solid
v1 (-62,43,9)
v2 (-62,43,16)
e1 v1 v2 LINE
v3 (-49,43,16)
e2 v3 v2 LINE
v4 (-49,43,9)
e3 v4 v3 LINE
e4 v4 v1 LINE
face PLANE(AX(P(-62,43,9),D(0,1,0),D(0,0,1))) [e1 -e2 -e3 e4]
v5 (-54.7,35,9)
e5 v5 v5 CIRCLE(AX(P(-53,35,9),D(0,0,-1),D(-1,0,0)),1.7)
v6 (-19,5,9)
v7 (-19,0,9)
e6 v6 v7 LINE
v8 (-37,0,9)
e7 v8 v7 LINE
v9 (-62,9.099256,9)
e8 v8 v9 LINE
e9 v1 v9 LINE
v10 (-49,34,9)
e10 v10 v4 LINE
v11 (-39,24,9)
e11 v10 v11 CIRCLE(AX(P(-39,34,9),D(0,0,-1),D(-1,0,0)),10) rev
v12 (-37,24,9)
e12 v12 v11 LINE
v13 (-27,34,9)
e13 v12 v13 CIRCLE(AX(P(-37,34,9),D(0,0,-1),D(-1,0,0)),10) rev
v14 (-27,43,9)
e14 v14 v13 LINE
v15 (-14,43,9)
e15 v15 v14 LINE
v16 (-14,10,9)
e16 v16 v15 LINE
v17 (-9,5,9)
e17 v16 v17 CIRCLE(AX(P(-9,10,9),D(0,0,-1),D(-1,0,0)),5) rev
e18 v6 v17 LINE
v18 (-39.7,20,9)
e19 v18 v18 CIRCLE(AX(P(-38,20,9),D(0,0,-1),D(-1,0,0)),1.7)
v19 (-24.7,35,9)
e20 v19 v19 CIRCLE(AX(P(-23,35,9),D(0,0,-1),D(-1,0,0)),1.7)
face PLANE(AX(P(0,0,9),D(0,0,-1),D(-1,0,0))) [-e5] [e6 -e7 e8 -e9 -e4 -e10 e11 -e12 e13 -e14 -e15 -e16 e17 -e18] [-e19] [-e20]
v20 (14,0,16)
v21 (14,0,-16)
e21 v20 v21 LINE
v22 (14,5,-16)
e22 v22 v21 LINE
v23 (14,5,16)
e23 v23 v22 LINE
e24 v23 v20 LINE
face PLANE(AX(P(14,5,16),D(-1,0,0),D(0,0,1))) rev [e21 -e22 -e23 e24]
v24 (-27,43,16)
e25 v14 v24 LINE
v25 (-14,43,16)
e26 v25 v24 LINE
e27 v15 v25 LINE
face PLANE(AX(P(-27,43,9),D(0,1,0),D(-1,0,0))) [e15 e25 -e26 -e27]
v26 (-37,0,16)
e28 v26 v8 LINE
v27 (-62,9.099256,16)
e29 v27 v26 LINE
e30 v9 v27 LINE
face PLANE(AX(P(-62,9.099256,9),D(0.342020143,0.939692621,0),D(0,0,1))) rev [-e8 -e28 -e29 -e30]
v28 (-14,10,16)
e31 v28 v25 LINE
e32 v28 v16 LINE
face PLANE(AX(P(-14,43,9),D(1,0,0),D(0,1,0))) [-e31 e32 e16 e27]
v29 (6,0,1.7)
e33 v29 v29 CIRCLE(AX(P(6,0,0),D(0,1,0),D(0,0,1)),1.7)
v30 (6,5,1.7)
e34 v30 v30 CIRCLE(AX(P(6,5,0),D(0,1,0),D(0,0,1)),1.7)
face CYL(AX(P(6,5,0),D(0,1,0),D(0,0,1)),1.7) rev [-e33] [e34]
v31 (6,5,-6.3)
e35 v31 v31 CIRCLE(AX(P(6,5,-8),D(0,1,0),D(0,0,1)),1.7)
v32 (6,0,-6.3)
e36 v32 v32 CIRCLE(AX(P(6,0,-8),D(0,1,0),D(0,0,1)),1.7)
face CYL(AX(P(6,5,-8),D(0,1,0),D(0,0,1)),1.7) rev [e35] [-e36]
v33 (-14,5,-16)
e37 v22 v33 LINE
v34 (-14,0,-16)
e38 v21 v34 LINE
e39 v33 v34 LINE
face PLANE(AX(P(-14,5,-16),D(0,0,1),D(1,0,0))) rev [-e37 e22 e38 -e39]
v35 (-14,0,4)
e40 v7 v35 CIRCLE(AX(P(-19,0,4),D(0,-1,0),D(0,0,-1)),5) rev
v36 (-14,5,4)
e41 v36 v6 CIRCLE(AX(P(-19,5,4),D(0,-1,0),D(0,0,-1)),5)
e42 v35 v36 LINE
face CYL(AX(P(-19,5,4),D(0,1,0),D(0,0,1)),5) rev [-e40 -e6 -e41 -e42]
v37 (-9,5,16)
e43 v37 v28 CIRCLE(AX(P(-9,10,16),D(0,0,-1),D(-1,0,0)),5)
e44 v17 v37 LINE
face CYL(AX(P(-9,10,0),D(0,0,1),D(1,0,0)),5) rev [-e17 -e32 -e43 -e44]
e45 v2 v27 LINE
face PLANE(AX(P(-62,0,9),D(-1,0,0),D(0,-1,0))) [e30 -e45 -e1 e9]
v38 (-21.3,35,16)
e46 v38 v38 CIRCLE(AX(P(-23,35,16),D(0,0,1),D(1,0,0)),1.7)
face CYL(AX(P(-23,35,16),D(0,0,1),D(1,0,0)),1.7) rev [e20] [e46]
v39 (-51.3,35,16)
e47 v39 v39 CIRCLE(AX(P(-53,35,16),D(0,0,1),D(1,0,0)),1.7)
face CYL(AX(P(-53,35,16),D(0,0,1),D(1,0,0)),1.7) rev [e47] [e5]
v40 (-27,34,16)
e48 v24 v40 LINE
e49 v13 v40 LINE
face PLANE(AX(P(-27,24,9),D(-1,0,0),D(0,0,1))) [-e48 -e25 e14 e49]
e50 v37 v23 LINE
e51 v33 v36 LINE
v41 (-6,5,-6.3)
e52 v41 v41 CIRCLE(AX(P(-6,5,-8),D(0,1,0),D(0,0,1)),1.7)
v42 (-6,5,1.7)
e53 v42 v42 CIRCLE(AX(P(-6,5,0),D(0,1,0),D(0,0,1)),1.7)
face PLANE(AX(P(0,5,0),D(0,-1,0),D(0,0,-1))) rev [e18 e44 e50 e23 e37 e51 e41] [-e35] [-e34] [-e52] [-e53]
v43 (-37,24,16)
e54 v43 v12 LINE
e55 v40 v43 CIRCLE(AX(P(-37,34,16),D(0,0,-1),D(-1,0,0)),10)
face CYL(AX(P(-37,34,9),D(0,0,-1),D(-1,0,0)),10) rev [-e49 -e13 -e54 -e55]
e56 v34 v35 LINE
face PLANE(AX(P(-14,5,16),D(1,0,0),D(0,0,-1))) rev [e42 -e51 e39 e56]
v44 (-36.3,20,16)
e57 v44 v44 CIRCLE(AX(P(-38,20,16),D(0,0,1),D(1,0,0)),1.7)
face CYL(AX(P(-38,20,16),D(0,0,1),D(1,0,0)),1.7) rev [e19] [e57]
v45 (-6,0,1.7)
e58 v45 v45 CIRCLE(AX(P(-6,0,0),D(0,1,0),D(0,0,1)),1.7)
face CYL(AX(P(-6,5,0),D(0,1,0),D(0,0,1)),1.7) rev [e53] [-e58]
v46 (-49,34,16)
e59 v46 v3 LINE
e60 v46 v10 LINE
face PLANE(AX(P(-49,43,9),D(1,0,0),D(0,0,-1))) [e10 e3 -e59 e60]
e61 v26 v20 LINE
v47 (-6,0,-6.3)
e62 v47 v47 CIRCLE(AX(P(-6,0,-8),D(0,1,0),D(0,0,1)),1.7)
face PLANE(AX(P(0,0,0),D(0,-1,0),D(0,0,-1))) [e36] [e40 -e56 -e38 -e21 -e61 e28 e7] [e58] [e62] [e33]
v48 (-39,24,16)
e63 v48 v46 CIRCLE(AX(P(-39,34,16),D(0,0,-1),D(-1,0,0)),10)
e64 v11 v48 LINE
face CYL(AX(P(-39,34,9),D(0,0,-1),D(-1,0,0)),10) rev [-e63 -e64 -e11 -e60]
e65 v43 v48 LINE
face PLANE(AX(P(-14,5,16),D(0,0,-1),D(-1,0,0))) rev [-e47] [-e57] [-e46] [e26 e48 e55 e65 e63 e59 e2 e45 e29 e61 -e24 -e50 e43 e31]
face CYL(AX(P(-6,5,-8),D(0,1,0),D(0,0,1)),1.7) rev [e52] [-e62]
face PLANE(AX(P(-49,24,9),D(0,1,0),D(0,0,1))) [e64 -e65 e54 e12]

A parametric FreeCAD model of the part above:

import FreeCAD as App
import Part
import Sketcher
from FreeCAD import Vector
Q = App.Units.Quantity


def edges_at(feature, points):
    """Names of the edges that pass closest to the given points."""
    edges = feature.Shape.Edges
    near = lambda p: min(range(len(edges)), key=lambda i: edges[i].distToShape(Part.Vertex(*p))[0])
    return sorted({f"Edge{near(p) + 1}" for p in points})

doc = App.newDocument("Part")
body = doc.addObject("PartDesign::Body", "Body")

sketch1 = doc.addObject("Sketcher::SketchObject", "Sketch")
body.addObject(sketch1)
sketch1.AttachmentSupport = (doc.XZ_Plane, [""])
sketch1.MapMode = "FlatFace"
sketch1.addGeometry([
    Part.LineSegment(Vector(-14, -16, 0), Vector(-14, 16, 0)),
    Part.LineSegment(Vector(-14, 16, 0), Vector(14, 16, 0)),
    Part.LineSegment(Vector(14, 16, 0), Vector(14, -16, 0)),
    Part.LineSegment(Vector(14, -16, 0), Vector(-14, -16, 0)),
], False)
sketch1.addConstraint([
    Sketcher.Constraint("Coincident", 0, 2, 1, 1),
    Sketcher.Constraint("Coincident", 1, 2, 2, 1),
    Sketcher.Constraint("Coincident", 2, 2, 3, 1),
    Sketcher.Constraint("Coincident", 3, 2, 0, 1),
    Sketcher.Constraint("Vertical", 0),
    Sketcher.Constraint("Horizontal", 1),
    Sketcher.Constraint("Vertical", 2),
    Sketcher.Constraint("Horizontal", 3),
    Sketcher.Constraint("Symmetric", 0, 2, 2, 2, -1, 1),
    Sketcher.Constraint("DistanceX", 1, 1, 1, 2, Q("28 mm")),
    Sketcher.Constraint("DistanceY", 0, 1, 0, 2, Q("32 mm")),
])
pad1 = doc.addObject("PartDesign::Pad", "Pad")
body.addObject(pad1)
pad1.Profile = sketch1
pad1.Length = 5
pad1.Reversed = True

sketch2 = doc.addObject("Sketcher::SketchObject", "Sketch001")
body.addObject(sketch2)
sketch2.AttachmentSupport = (doc.XZ_Plane, [""])
sketch2.MapMode = "FlatFace"
sketch2.AttachmentOffset = App.Placement(Vector(0, 0, -5), App.Rotation())
sketch2.addGeometry([
    Part.Circle(Vector(-6, -8, 0), Vector(0, 0, 1), 1.7),
    Part.Circle(Vector(6, -8, 0), Vector(0, 0, 1), 1.7),
    Part.Circle(Vector(6, 0, 0), Vector(0, 0, 1), 1.7),
    Part.Circle(Vector(-6, 0, 0), Vector(0, 0, 1), 1.7),
], False)
sketch2.addConstraint([
    Sketcher.Constraint("Equal", 0, 1),
    Sketcher.Constraint("Equal", 1, 2),
    Sketcher.Constraint("Equal", 2, 3),
    Sketcher.Constraint("Symmetric", 2, 3, 3, 3, -1, 1),
    Sketcher.Constraint("Symmetric", 0, 3, 1, 3, -2),
    Sketcher.Constraint("PointOnObject", 2, 3, -1),
    Sketcher.Constraint("Vertical", 1, 3, 2, 3),
    Sketcher.Constraint("Diameter", 0, Q("3.4 mm")),
    Sketcher.Constraint("DistanceX", 0, 3, -1, 1, Q("6 mm")),
    Sketcher.Constraint("DistanceY", 0, 3, -1, 1, Q("8 mm")),
])
doc.recompute()
hole = doc.addObject("PartDesign::Hole", "Hole")
body.addObject(hole)
hole.Profile = sketch2
hole.ThreadType = "None"
hole.Diameter = 3.4
hole.DepthType = "ThroughAll"
hole.Reversed = True

sketch3 = doc.addObject("Sketcher::SketchObject", "Sketch002")
body.addObject(sketch3)
sketch3.AttachmentSupport = (doc.XY_Plane, [""])
sketch3.MapMode = "FlatFace"
sketch3.AttachmentOffset = App.Placement(Vector(0, 0, 16), App.Rotation())
sketch3.addGeometry([
    Part.LineSegment(Vector(-62, 0, 0), Vector(-14, 0, 0)),
    Part.LineSegment(Vector(-14, 0, 0), Vector(-14, 43, 0)),
    Part.LineSegment(Vector(-14, 43, 0), Vector(-27, 43, 0)),
    Part.LineSegment(Vector(-27, 43, 0), Vector(-27, 24, 0)),
    Part.LineSegment(Vector(-27, 24, 0), Vector(-49, 24, 0)),
    Part.LineSegment(Vector(-49, 24, 0), Vector(-49, 43, 0)),
    Part.LineSegment(Vector(-49, 43, 0), Vector(-62, 43, 0)),
    Part.LineSegment(Vector(-62, 43, 0), Vector(-62, 0, 0)),
], False)
sketch3.addConstraint([
    Sketcher.Constraint("Coincident", 0, 2, 1, 1),
    Sketcher.Constraint("Coincident", 1, 2, 2, 1),
    Sketcher.Constraint("Coincident", 2, 2, 3, 1),
    Sketcher.Constraint("Coincident", 3, 2, 4, 1),
    Sketcher.Constraint("Coincident", 4, 2, 5, 1),
    Sketcher.Constraint("Coincident", 5, 2, 6, 1),
    Sketcher.Constraint("Coincident", 6, 2, 7, 1),
    Sketcher.Constraint("Coincident", 7, 2, 0, 1),
    Sketcher.Constraint("Horizontal", 0),
    Sketcher.Constraint("Vertical", 1),
    Sketcher.Constraint("Horizontal", 2),
    Sketcher.Constraint("Vertical", 3),
    Sketcher.Constraint("Horizontal", 4),
    Sketcher.Constraint("Vertical", 5),
    Sketcher.Constraint("Horizontal", 6),
    Sketcher.Constraint("Vertical", 7),
    Sketcher.Constraint("PointOnObject", 0, 2, -1),
    Sketcher.Constraint("Horizontal", 2, 2, 5, 2),
    Sketcher.Constraint("Equal", 2, 6),
    Sketcher.Constraint("DistanceX", 0, 1, 0, 2, Q("48 mm")),
    Sketcher.Constraint("DistanceX", 2, 2, 2, 1, Q("13 mm")),
    Sketcher.Constraint("DistanceY", 1, 1, 1, 2, Q("43 mm")),
    Sketcher.Constraint("DistanceY", 3, 2, 3, 1, Q("19 mm")),
    Sketcher.Constraint("DistanceX", 0, 2, -1, 1, Q("14 mm")),
])
pad2 = doc.addObject("PartDesign::Pad", "Pad001")
body.addObject(pad2)
pad2.Profile = sketch3
pad2.Length = 7
pad2.Reversed = True
doc.recompute()

fillet = doc.addObject("PartDesign::Fillet", "Fillet")
body.addObject(fillet)
fillet.Base = (pad2, edges_at(pad2, [(-49, 24, 12.5), (-27, 24, 12.5)]))
fillet.Radius = 10
doc.recompute()

fillet2 = doc.addObject("PartDesign::Fillet", "Fillet001")
body.addObject(fillet2)
fillet2.Base = (fillet, edges_at(fillet, [(-14, 5, 12.5)]))
fillet2.Radius = 5
doc.recompute()

fillet3 = doc.addObject("PartDesign::Fillet", "Fillet002")
body.addObject(fillet3)
fillet3.Base = (fillet2, edges_at(fillet2, [(-14, 2.5, 9)]))
fillet3.Radius = 5

sketch4 = doc.addObject("Sketcher::SketchObject", "Sketch003")
body.addObject(sketch4)
sketch4.AttachmentSupport = (doc.XY_Plane, [""])
sketch4.MapMode = "FlatFace"
sketch4.AttachmentOffset = App.Placement(Vector(0, 0, 16), App.Rotation())
sketch4.addGeometry([
    Part.Circle(Vector(-53, 35, 0), Vector(0, 0, 1), 1.7),
    Part.Circle(Vector(-23, 35, 0), Vector(0, 0, 1), 1.7),
    Part.Circle(Vector(-38, 20, 0), Vector(0, 0, 1), 1.7),
], False)
sketch4.addConstraint([
    Sketcher.Constraint("Equal", 0, 1),
    Sketcher.Constraint("Equal", 1, 2),
    Sketcher.Constraint("Horizontal", 0, 3, 1, 3),
    Sketcher.Constraint("Diameter", 0, Q("3.4 mm")),
    Sketcher.Constraint("DistanceX", 0, 3, -1, 1, Q("53 mm")),
    Sketcher.Constraint("DistanceY", -1, 1, 0, 3, Q("35 mm")),
    Sketcher.Constraint("DistanceX", 1, 3, -1, 1, Q("23 mm")),
    Sketcher.Constraint("DistanceX", 2, 3, -1, 1, Q("38 mm")),
    Sketcher.Constraint("DistanceY", -1, 1, 2, 3, Q("20 mm")),
])
doc.recompute()
hole2 = doc.addObject("PartDesign::Hole", "Hole001")
body.addObject(hole2)
hole2.Profile = sketch4
hole2.ThreadType = "None"
hole2.Diameter = 3.4
hole2.DepthType = "ThroughAll"
doc.recompute()

chamfer = doc.addObject("PartDesign::Chamfer", "Chamfer")
body.addObject(chamfer)
chamfer.Base = (hole2, edges_at(hole2, [(-62, 0, 12.5)]))
chamfer.ChamferType = "Two distances"
chamfer.Size = 25
chamfer.Size2 = 9.099256

doc.recompute()
